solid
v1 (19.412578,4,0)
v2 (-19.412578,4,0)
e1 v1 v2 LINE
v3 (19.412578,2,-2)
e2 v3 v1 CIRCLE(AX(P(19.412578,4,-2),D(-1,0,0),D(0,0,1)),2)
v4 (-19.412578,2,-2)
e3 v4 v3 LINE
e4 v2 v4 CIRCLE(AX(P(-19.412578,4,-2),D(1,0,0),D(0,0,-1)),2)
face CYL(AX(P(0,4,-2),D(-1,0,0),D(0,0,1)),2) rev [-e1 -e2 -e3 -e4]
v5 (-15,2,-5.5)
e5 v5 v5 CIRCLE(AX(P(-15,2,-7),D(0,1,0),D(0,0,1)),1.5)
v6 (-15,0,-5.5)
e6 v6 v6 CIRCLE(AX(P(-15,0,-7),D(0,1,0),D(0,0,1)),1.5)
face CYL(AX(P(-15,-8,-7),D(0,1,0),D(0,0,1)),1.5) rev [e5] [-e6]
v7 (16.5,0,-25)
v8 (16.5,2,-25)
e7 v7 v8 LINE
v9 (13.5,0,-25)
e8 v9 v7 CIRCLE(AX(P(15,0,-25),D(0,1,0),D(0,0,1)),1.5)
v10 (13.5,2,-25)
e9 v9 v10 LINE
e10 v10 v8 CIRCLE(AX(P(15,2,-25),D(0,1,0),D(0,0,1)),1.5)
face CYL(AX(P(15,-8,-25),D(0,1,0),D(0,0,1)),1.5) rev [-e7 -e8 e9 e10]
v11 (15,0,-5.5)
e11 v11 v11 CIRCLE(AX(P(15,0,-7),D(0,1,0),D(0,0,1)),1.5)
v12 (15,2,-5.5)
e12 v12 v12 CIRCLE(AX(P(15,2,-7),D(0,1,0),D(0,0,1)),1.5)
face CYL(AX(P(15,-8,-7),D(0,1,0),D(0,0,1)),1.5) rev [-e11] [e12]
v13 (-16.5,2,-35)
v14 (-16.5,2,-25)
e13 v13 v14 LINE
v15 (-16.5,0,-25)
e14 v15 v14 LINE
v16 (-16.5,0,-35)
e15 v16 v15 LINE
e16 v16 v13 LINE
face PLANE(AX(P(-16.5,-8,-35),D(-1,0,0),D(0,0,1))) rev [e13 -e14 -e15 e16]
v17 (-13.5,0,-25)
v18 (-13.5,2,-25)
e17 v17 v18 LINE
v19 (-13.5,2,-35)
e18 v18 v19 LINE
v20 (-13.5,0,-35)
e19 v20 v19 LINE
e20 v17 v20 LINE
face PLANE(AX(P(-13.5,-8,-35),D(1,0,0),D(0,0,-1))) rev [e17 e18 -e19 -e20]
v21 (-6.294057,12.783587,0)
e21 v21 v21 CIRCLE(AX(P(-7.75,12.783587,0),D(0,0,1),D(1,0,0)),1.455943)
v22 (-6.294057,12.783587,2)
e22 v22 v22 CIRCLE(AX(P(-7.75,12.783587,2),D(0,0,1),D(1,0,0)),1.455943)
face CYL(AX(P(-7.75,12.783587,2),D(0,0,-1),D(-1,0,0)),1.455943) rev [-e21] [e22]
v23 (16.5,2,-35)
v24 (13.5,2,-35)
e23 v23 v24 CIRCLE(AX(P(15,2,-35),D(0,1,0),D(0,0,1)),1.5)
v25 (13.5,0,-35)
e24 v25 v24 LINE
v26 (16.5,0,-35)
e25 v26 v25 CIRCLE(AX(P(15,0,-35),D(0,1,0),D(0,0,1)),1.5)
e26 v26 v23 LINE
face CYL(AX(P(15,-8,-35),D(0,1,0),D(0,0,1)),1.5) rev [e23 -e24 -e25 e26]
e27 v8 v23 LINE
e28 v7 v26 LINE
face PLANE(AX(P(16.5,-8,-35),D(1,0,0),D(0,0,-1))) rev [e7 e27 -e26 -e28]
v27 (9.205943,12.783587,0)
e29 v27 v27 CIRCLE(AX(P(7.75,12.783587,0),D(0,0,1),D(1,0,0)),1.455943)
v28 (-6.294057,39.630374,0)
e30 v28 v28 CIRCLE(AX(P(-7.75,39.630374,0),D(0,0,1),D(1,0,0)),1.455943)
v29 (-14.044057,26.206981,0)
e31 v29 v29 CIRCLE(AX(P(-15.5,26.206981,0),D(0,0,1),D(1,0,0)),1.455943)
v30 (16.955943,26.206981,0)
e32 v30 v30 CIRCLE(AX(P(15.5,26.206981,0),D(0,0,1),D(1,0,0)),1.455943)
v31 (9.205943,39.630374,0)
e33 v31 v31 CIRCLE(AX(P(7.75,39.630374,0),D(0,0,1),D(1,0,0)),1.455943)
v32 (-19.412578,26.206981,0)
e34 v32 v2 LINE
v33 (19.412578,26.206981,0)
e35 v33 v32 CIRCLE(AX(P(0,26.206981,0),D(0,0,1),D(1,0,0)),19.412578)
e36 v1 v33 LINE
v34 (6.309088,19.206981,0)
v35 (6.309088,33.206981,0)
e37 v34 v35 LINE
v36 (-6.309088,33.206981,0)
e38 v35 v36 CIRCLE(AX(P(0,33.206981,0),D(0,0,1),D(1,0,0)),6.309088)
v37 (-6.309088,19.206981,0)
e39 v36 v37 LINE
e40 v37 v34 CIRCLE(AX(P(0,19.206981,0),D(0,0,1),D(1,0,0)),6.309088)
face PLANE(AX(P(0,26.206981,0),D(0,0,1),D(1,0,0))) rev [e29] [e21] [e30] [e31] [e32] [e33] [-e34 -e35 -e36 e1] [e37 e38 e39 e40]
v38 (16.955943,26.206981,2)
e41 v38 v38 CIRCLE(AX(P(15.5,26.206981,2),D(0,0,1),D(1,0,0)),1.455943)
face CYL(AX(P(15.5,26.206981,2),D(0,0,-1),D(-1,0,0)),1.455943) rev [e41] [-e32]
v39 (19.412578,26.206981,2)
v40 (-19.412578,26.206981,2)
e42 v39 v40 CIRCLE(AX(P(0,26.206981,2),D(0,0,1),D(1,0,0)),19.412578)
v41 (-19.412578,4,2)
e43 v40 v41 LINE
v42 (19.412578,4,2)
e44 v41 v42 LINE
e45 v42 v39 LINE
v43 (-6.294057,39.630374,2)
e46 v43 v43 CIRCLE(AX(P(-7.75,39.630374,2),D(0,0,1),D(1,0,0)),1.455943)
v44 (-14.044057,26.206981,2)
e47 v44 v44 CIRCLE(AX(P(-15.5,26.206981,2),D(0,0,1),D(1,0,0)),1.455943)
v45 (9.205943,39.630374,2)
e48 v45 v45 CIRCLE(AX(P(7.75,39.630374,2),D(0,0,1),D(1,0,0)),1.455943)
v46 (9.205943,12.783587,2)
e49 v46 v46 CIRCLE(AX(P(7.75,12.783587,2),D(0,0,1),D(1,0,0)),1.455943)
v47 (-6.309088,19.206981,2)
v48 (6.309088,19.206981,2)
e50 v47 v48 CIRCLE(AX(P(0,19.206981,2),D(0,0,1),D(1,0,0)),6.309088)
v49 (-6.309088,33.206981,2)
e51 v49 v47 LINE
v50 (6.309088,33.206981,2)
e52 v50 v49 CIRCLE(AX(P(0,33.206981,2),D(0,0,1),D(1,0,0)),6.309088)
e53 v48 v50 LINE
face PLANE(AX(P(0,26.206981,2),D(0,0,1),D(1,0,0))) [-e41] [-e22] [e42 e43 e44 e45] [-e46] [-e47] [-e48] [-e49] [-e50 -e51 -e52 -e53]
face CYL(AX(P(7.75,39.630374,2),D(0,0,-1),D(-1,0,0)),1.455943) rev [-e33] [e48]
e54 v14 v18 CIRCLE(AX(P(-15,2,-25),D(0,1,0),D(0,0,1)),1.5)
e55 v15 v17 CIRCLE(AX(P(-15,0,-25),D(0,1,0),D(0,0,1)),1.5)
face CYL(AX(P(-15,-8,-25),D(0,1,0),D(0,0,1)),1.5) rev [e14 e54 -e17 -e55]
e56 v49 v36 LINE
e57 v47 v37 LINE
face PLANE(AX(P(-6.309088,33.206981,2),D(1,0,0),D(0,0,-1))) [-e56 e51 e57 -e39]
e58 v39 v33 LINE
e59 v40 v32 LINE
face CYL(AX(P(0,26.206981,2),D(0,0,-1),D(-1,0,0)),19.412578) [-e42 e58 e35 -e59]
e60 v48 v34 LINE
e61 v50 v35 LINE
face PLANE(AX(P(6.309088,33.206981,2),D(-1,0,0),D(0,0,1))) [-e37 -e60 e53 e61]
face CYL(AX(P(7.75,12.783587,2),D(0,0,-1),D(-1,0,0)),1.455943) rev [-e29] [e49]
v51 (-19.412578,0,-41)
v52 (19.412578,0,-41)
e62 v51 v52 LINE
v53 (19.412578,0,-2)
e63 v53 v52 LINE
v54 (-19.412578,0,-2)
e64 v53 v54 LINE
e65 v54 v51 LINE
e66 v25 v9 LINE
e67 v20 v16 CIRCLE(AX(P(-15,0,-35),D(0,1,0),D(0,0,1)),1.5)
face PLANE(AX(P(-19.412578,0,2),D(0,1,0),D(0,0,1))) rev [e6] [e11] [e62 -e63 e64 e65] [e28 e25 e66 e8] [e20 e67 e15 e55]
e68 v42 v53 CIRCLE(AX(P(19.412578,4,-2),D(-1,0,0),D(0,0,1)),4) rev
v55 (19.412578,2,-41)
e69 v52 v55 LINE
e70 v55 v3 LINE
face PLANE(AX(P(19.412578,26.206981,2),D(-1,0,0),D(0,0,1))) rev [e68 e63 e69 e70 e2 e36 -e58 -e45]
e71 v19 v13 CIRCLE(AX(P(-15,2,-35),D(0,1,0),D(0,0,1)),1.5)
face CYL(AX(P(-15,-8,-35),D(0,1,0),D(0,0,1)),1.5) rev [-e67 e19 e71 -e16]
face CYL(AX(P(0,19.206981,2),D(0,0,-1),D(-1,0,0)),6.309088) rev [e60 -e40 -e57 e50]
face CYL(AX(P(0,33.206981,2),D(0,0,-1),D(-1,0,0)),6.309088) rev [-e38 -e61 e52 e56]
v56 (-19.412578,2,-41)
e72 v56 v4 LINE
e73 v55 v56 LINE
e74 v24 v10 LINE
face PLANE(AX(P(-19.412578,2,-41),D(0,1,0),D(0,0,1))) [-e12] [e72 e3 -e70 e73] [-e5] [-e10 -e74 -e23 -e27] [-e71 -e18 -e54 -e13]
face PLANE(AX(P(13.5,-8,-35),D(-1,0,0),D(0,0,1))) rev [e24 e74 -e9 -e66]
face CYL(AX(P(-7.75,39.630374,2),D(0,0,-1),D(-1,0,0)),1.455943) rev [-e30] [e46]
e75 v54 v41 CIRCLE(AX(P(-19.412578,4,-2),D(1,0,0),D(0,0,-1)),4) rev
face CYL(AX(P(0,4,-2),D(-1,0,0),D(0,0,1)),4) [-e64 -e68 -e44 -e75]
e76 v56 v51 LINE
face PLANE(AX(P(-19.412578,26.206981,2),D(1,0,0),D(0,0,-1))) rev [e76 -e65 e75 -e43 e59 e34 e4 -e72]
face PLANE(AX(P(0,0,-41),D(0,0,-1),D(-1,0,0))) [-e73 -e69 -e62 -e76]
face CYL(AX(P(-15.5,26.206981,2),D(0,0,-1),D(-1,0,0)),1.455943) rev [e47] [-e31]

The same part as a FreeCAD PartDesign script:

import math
import FreeCAD as App
import Part
import Sketcher

V = App.Vector
Q = App.Units.Quantity


def edges_at(feature, points):
    """Names of the edges that pass closest to the given points."""
    edges = feature.Shape.Edges
    near = lambda p: min(range(len(edges)), key=lambda i: edges[i].distToShape(Part.Vertex(*p))[0])
    return sorted({f"Edge{near(p) + 1}" for p in points})

doc = App.newDocument("Part")
params = doc.addObject("Spreadsheet::Sheet", "Params")
for row, (alias, value) in enumerate([
    ("sketch1_height", "14 mm"),
    ("pad1_length", "2 mm"),
    ("sketch2_height", "2 mm"),
    ("pad2_length", "43 mm"),
    ("sketch3_diameter", "3 mm"),
    ("sketch3_height", "10 mm"),
    ("pocket1_length", "10 mm"),
    ("fillet_radius", "4 mm"),
    ("fillet2_radius", "2 mm"),
], start=1):
    params.set(f"A{row}", alias)
    params.set(f"B{row}", "=" + value)
    params.setAlias(f"B{row}", alias)

body = doc.addObject("PartDesign::Body", "Body")

sketch1 = body.newObject("Sketcher::SketchObject", "Sketch")
sketch1.AttachmentSupport = (doc.getObject("XY_Plane"), [""])
sketch1.MapMode = "FlatFace"
sketch1.addGeometry([
    Part.LineSegment(V(-19.4, 26.2, 0), V(-19.4, 0, 0)),
    Part.LineSegment(V(-19.4, 0, 0), V(19.4, 0, 0)),
    Part.LineSegment(V(19.4, 0, 0), V(19.4, 26.2, 0)),
    Part.ArcOfCircle(Part.Circle(V(0, 26.2, 0), V(0, 0, 1), 19.4), math.radians(0), math.radians(180)),
    Part.Circle(V(-7.8, 12.8, 0), V(0, 0, 1), 1.5),
    Part.Circle(V(-15.5, 26.2, 0), V(0, 0, 1), 1.5),
    Part.Circle(V(7.8, 12.8, 0), V(0, 0, 1), 1.5),
    Part.LineSegment(V(-6.3, 19.2, 0), V(-6.3, 33.2, 0)),
    Part.ArcOfCircle(Part.Circle(V(0, 33.2, 0), V(0, 0, 1), 6.3), math.radians(0), math.radians(180)),
    Part.LineSegment(V(6.3, 33.2, 0), V(6.3, 19.2, 0)),
    Part.ArcOfCircle(Part.Circle(V(0, 19.2, 0), V(0, 0, 1), 6.3), math.radians(180), math.radians(360)),
    Part.Circle(V(15.5, 26.2, 0), V(0, 0, 1), 1.5),
    Part.Circle(V(-7.8, 39.6, 0), V(0, 0, 1), 1.5),
    Part.Circle(V(7.8, 39.6, 0), V(0, 0, 1), 1.5),
], False)
sketch1.addConstraint([
    Sketcher.Constraint("Coincident", 0, 2, 1, 1),
    Sketcher.Constraint("Coincident", 1, 2, 2, 1),
    Sketcher.Constraint("Tangent", 2, 2, 3, 1),
    Sketcher.Constraint("Tangent", 3, 2, 0, 1),
    Sketcher.Constraint("Tangent", 7, 2, 8, 2),
    Sketcher.Constraint("Tangent", 8, 1, 9, 1),
    Sketcher.Constraint("Tangent", 9, 2, 10, 2),
    Sketcher.Constraint("Tangent", 10, 1, 7, 1),
    Sketcher.Constraint("Vertical", 0),
    Sketcher.Constraint("Horizontal", 1),
    Sketcher.Constraint("Vertical", 2),
    Sketcher.Constraint("Vertical", 7),
    Sketcher.Constraint("Vertical", 9),
    Sketcher.Constraint("Equal", 4, 5),
    Sketcher.Constraint("Equal", 5, 6),
    Sketcher.Constraint("Equal", 6, 11),
    Sketcher.Constraint("Equal", 11, 12),
    Sketcher.Constraint("Equal", 12, 13),
    Sketcher.Constraint("Symmetric", 0, 2, 1, 2, -1, 1),
    Sketcher.Constraint("Symmetric", 4, 3, 6, 3, -2),
    Sketcher.Constraint("Symmetric", 5, 3, 11, 3, -2),
    Sketcher.Constraint("Symmetric", 12, 3, 13, 3, -2),
    Sketcher.Constraint("PointOnObject", 8, 3, -2),
    Sketcher.Constraint("Horizontal", 3, 3, 5, 3),
    Sketcher.Constraint("Vertical", 4, 3, 12, 3),
    Sketcher.Constraint("DistanceY", 7, 1, 7, 2, Q("14 mm")),
    Sketcher.Constraint("DistanceY", 3, 3, 8, 3, Q("7 mm")),
    Sketcher.Constraint("DistanceX", 5, 3, -1, 1, Q("15.5 mm")),
    Sketcher.Constraint("DistanceX", 4, 3, 6, 3, Q("15.5 mm")),
    Sketcher.Constraint("Radius", 3, Q("19.412578 mm")),
    Sketcher.Constraint("Diameter", 4, Q("2.911887 mm")),
    Sketcher.Constraint("Radius", 8, Q("6.309088 mm")),
    Sketcher.Constraint("DistanceY", 0, 2, 0, 1, Q("26.206981 mm")),
    Sketcher.Constraint("DistanceY", -1, 1, 4, 3, Q("12.783587 mm")),
    Sketcher.Constraint("DistanceY", -1, 1, 12, 3, Q("39.630374 mm")),
])
sketch1.setExpression("Constraints[25]", "Params.sketch1_height")
pad1 = body.newObject("PartDesign::Pad", "Pad")
pad1.Profile = sketch1
pad1.setExpression("Length", "Params.pad1_length")

sketch2 = body.newObject("Sketcher::SketchObject", "Sketch001")
sketch2.AttachmentSupport = (doc.getObject("XY_Plane"), [""])
sketch2.MapMode = "FlatFace"
sketch2.AttachmentOffset = App.Placement(V(0, 0, 2), App.Rotation())
sketch2.addGeometry([
    Part.LineSegment(V(-19.4, 2, 0), V(-19.4, 0, 0)),
    Part.LineSegment(V(-19.4, 0, 0), V(19.4, 0, 0)),
    Part.LineSegment(V(19.4, 0, 0), V(19.4, 2, 0)),
    Part.LineSegment(V(19.4, 2, 0), V(-19.4, 2, 0)),
], False)
sketch2.addConstraint([
    Sketcher.Constraint("Coincident", 0, 2, 1, 1),
    Sketcher.Constraint("Coincident", 1, 2, 2, 1),
    Sketcher.Constraint("Coincident", 2, 2, 3, 1),
    Sketcher.Constraint("Coincident", 3, 2, 0, 1),
    Sketcher.Constraint("Vertical", 0),
    Sketcher.Constraint("Horizontal", 1),
    Sketcher.Constraint("Vertical", 2),
    Sketcher.Constraint("Horizontal", 3),
    Sketcher.Constraint("Symmetric", 0, 2, 1, 2, -1, 1),
    Sketcher.Constraint("DistanceY", 0, 2, 0, 1, Q("2 mm")),
    Sketcher.Constraint("DistanceX", 1, 1, 1, 2, Q("38.825156 mm")),
])
sketch2.setExpression("Constraints[9]", "Params.sketch2_height")
pad2 = body.newObject("PartDesign::Pad", "Pad001")
pad2.Profile = sketch2
pad2.setExpression("Length", "Params.pad2_length")
pad2.Reversed = True

sketch3 = body.newObject("Sketcher::SketchObject", "Sketch002")
sketch3.AttachmentSupport = (doc.getObject("XZ_Plane"), [""])
sketch3.MapMode = "FlatFace"
sketch3.AttachmentOffset = App.Placement(V(0, 0, -2), App.Rotation())
sketch3.addGeometry([
    Part.Circle(V(-15, -7, 0), V(0, 0, 1), 1.5),
    Part.Circle(V(15, -7, 0), V(0, 0, 1), 1.5),
    Part.LineSegment(V(-16.5, -35, 0), V(-16.5, -25, 0)),
    Part.ArcOfCircle(Part.Circle(V(-15, -25, 0), V(0, 0, 1), 1.5), math.radians(0), math.radians(180)),
    Part.LineSegment(V(-13.5, -25, 0), V(-13.5, -35, 0)),
    Part.ArcOfCircle(Part.Circle(V(-15, -35, 0), V(0, 0, 1), 1.5), math.radians(180), math.radians(360)),
    Part.LineSegment(V(13.5, -35, 0), V(13.5, -25, 0)),
    Part.ArcOfCircle(Part.Circle(V(15, -25, 0), V(0, 0, 1), 1.5), math.radians(0), math.radians(180)),
    Part.LineSegment(V(16.5, -25, 0), V(16.5, -35, 0)),
    Part.ArcOfCircle(Part.Circle(V(15, -35, 0), V(0, 0, 1), 1.5), math.radians(180), math.radians(360)),
], False)
sketch3.addConstraint([
    Sketcher.Constraint("Tangent", 2, 2, 3, 2),
    Sketcher.Constraint("Tangent", 3, 1, 4, 1),
    Sketcher.Constraint("Tangent", 4, 2, 5, 2),
    Sketcher.Constraint("Tangent", 5, 1, 2, 1),
    Sketcher.Constraint("Tangent", 6, 2, 7, 2),
    Sketcher.Constraint("Tangent", 7, 1, 8, 1),
    Sketcher.Constraint("Tangent", 8, 2, 9, 2),
    Sketcher.Constraint("Tangent", 9, 1, 6, 1),
    Sketcher.Constraint("Vertical", 2),
    Sketcher.Constraint("Vertical", 4),
    Sketcher.Constraint("Vertical", 6),
    Sketcher.Constraint("Vertical", 8),
    Sketcher.Constraint("Equal", 0, 1),
    Sketcher.Constraint("Equal", 1, 3),
    Sketcher.Constraint("Equal", 5, 7),
    Sketcher.Constraint("Symmetric", 0, 3, 1, 3, -2),
    Sketcher.Constraint("Symmetric", 3, 3, 7, 3, -2),
    Sketcher.Constraint("Horizontal", 5, 3, 9, 3),
    Sketcher.Constraint("Vertical", 0, 3, 3, 3),
    Sketcher.Constraint("Diameter", 0, Q("3 mm")),
    Sketcher.Constraint("DistanceY", 2, 1, 2, 2, Q("10 mm")),
    Sketcher.Constraint("DistanceX", 0, 3, -1, 1, Q("15 mm")),
    Sketcher.Constraint("DistanceY", 0, 3, -1, 1, Q("7 mm")),
    Sketcher.Constraint("DistanceY", 3, 3, -1, 1, Q("25 mm")),
])
sketch3.setExpression("Constraints[19]", "Params.sketch3_diameter")
sketch3.setExpression("Constraints[20]", "Params.sketch3_height")
pocket1 = body.newObject("PartDesign::Pocket", "Pocket")
pocket1.Profile = sketch3
pocket1.setExpression("Length", "Params.pocket1_length")
pocket1.Reversed = True
doc.recompute()

fillet = body.newObject("PartDesign::Fillet", "Fillet")
fillet.Base = (pocket1, edges_at(pocket1, [(0, 0, 2)]))
fillet.setExpression("Radius", "Params.fillet_radius")
doc.recompute()

fillet2 = body.newObject("PartDesign::Fillet", "Fillet001")
fillet2.Base = (fillet, edges_at(fillet, [(0, 2, 0)]))
fillet2.setExpression("Radius", "Params.fillet2_radius")

doc.recompute()
